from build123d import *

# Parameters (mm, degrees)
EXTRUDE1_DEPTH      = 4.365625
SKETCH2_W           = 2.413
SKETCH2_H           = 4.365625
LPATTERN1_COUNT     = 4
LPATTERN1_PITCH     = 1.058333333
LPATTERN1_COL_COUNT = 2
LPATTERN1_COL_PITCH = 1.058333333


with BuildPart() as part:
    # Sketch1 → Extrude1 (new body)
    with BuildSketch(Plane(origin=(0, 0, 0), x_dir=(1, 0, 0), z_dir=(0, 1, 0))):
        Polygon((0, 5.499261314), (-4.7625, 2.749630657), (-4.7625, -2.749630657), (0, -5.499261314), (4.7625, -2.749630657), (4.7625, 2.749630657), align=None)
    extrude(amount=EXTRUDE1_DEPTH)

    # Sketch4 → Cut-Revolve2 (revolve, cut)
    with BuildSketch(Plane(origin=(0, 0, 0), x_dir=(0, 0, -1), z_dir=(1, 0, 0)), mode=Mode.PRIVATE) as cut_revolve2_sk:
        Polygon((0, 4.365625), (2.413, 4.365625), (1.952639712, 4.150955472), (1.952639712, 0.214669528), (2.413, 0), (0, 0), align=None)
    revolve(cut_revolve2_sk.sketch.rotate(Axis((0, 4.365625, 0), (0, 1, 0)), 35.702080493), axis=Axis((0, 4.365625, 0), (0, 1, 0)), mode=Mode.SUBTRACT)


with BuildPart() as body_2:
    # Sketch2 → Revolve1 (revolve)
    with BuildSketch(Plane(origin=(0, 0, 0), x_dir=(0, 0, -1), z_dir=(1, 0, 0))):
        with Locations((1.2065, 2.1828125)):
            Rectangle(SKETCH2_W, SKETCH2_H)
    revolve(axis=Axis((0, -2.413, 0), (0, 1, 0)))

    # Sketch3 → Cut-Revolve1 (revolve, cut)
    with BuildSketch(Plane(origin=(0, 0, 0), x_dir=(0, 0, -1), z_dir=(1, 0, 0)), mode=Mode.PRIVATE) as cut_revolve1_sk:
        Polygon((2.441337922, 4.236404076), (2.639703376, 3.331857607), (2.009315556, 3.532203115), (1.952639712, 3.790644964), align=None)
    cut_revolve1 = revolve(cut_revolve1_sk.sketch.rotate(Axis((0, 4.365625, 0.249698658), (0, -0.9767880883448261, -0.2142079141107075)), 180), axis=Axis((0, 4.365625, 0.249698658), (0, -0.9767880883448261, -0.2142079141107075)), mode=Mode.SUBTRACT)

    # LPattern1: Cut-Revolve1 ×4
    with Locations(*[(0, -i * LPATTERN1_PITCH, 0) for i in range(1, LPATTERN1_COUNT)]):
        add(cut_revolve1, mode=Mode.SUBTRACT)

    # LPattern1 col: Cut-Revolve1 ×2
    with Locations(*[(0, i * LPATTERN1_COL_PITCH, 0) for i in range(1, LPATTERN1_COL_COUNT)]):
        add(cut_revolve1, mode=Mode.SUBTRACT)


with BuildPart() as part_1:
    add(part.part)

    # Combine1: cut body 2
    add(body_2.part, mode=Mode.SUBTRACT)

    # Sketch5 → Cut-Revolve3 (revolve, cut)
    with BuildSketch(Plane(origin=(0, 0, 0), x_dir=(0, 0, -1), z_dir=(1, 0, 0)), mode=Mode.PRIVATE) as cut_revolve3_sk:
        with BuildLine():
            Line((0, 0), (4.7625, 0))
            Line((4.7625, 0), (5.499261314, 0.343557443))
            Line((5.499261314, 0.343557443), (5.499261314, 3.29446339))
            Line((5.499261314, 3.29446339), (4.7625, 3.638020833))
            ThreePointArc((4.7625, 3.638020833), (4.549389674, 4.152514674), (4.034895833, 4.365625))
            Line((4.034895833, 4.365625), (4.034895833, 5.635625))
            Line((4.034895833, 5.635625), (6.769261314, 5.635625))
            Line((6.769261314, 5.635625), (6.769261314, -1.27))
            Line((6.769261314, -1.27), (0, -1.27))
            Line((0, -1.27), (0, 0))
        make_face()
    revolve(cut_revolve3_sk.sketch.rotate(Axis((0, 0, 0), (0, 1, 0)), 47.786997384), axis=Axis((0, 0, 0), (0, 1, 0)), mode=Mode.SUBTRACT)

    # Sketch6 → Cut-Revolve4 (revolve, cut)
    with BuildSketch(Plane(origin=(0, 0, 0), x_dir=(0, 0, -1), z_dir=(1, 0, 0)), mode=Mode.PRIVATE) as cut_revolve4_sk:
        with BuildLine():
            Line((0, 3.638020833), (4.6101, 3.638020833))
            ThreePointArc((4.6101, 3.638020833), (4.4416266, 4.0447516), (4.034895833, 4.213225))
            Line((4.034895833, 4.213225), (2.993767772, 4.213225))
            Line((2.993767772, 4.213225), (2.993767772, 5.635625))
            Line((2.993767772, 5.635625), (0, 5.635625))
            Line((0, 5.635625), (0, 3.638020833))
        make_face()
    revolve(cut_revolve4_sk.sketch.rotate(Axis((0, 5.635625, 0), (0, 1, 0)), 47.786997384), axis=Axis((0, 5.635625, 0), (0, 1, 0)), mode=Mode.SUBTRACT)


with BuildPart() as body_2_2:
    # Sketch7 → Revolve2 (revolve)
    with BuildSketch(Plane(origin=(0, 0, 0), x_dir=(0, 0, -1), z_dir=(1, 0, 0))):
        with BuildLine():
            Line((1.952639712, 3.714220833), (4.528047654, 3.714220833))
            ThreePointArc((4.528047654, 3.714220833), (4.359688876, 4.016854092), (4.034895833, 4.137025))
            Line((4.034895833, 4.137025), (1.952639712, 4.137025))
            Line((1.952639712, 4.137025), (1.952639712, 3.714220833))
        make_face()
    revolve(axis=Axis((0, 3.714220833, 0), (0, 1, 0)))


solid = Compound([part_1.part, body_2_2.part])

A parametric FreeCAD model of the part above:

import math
import FreeCAD as App
import Part
import Sketcher
Q = App.Units.Quantity

doc = App.newDocument("Part")
body = doc.addObject("PartDesign::Body", "Body")

sketch1 = body.newObject("Sketcher::SketchObject", "Sketch")
sketch1.AttachmentSupport = (doc.getObject("XZ_Plane"), [""])
sketch1.MapMode = "FlatFace"
sketch1.addGeometry(Part.LineSegment(App.Vector(0, -5, 0), App.Vector(-5, -3, 0)), False)
sketch1.addGeometry(Part.LineSegment(App.Vector(-5, -3, 0), App.Vector(-5, 3, 0)), False)
sketch1.addGeometry(Part.LineSegment(App.Vector(-5, 3, 0), App.Vector(0, 5, 0)), False)
sketch1.addGeometry(Part.LineSegment(App.Vector(0, 5, 0), App.Vector(5, 3, 0)), False)
sketch1.addGeometry(Part.LineSegment(App.Vector(5, 3, 0), App.Vector(5, -3, 0)), False)
sketch1.addGeometry(Part.LineSegment(App.Vector(5, -3, 0), App.Vector(0, -5, 0)), False)
sketch1.addConstraint(Sketcher.Constraint("Coincident", 0, 2, 1, 1))
sketch1.addConstraint(Sketcher.Constraint("Coincident", 1, 2, 2, 1))
sketch1.addConstraint(Sketcher.Constraint("Coincident", 2, 2, 3, 1))
sketch1.addConstraint(Sketcher.Constraint("Coincident", 3, 2, 4, 1))
sketch1.addConstraint(Sketcher.Constraint("Coincident", 4, 2, 5, 1))
sketch1.addConstraint(Sketcher.Constraint("Coincident", 5, 2, 0, 1))
sketch1.addConstraint(Sketcher.Constraint("Vertical", 1))
sketch1.addConstraint(Sketcher.Constraint("Vertical", 4))
sketch1.addConstraint(Sketcher.Constraint("Symmetric", 0, 2, 3, 2, -1, 1))
sketch1.addConstraint(Sketcher.Constraint("Symmetric", 2, 2, 5, 2, -1, 1))
sketch1.addConstraint(Sketcher.Constraint("PointOnObject", 2, 2, -2))
sketch1.addConstraint(Sketcher.Constraint("Parallel", 2, 5))
sketch1.addConstraint(Sketcher.Constraint("Horizontal", 1, 2, 3, 2))
sketch1.addConstraint(Sketcher.Constraint("Angle", 0, Q("150 deg")))
sketch1.addConstraint(Sketcher.Constraint("DistanceX", 0, 2, -1, 1, Q("0.1875 in")))
sketch1.addConstraint(Sketcher.Constraint("DistanceY", 1, 1, 1, 2, 5.499261))
pad1 = body.newObject("PartDesign::Pad", "Pad")
pad1.Profile = sketch1
pad1.Length = Q("0.171875 in")
pad1.Reversed = True

sketch2 = body.newObject("Sketcher::SketchObject", "Sketch001")
sketch2.AttachmentSupport = (doc.getObject("YZ_Plane"), [""])
sketch2.MapMode = "FlatFace"
sketch2.addGeometry(Part.LineSegment(App.Vector(4.4, -2.4, 0), App.Vector(4.4, 0, 0)), False)
sketch2.addGeometry(Part.LineSegment(App.Vector(4.4, 0, 0), App.Vector(0, 0, 0)), False)
sketch2.addGeometry(Part.LineSegment(App.Vector(0, 0, 0), App.Vector(0, -2.4, 0)), False)
sketch2.addGeometry(Part.LineSegment(App.Vector(0, -2.4, 0), App.Vector(0.2, -2, 0)), False)
sketch2.addGeometry(Part.LineSegment(App.Vector(0.2, -2, 0), App.Vector(4.2, -2, 0)), False)
sketch2.addGeometry(Part.LineSegment(App.Vector(4.2, -2, 0), App.Vector(4.4, -2.4, 0)), False)
sketch2.addConstraint(Sketcher.Constraint("Coincident", 0, 2, 1, 1))
sketch2.addConstraint(Sketcher.Constraint("Coincident", 1, 2, 2, 1))
sketch2.addConstraint(Sketcher.Constraint("Coincident", 2, 2, 3, 1))
sketch2.addConstraint(Sketcher.Constraint("Coincident", 3, 2, 4, 1))
sketch2.addConstraint(Sketcher.Constraint("Coincident", 4, 2, 5, 1))
sketch2.addConstraint(Sketcher.Constraint("Coincident", 5, 2, 0, 1))
sketch2.addConstraint(Sketcher.Constraint("Vertical", 0))
sketch2.addConstraint(Sketcher.Constraint("Horizontal", 1))
sketch2.addConstraint(Sketcher.Constraint("Vertical", 2))
sketch2.addConstraint(Sketcher.Constraint("Horizontal", 4))
sketch2.addConstraint(Sketcher.Constraint("Coincident", 1, 2, -1, 1))
sketch2.addConstraint(Sketcher.Constraint("Horizontal", 2, 2, 5, 2))
sketch2.addConstraint(Sketcher.Constraint("Equal", 3, 5))
sketch2.addConstraint(Sketcher.Constraint("Angle", 3, Q("65 deg")))
sketch2.addConstraint(Sketcher.Constraint("DistanceX", 1, 2, 1, 1, Q("0.171875 in")))
sketch2.addConstraint(Sketcher.Constraint("DistanceY", 0, 1, 0, 2, Q("0.095 in")))
sketch2.addConstraint(Sketcher.Constraint("Distance", 3, 0.507951))
groove = body.newObject("PartDesign::Groove", "Groove")
groove.Profile = sketch2
groove.ReferenceAxis = (sketch2, ["H_Axis"])
groove.Angle = 360
body2 = doc.addObject("PartDesign::Body", "Body001")

sketch3 = body2.newObject("Sketcher::SketchObject", "Sketch002")
sketch3.AttachmentSupport = (doc.getObject("YZ_Plane001"), [""])
sketch3.MapMode = "FlatFace"
sketch3.addGeometry(Part.LineSegment(App.Vector(4.4, 0, 0), App.Vector(0, 0, 0)), False)
sketch3.addGeometry(Part.LineSegment(App.Vector(0, 0, 0), App.Vector(0, -2.4, 0)), False)
sketch3.addGeometry(Part.LineSegment(App.Vector(0, -2.4, 0), App.Vector(4.4, -2.4, 0)), False)
sketch3.addGeometry(Part.LineSegment(App.Vector(4.4, -2.4, 0), App.Vector(4.4, 0, 0)), False)
sketch3.addConstraint(Sketcher.Constraint("Coincident", 0, 2, 1, 1))
sketch3.addConstraint(Sketcher.Constraint("Coincident", 1, 2, 2, 1))
sketch3.addConstraint(Sketcher.Constraint("Coincident", 2, 2, 3, 1))
sketch3.addConstraint(Sketcher.Constraint("Coincident", 3, 2, 0, 1))
sketch3.addConstraint(Sketcher.Constraint("Horizontal", 0))
sketch3.addConstraint(Sketcher.Constraint("Vertical", 1))
sketch3.addConstraint(Sketcher.Constraint("Horizontal", 2))
sketch3.addConstraint(Sketcher.Constraint("Vertical", 3))
sketch3.addConstraint(Sketcher.Constraint("Coincident", 0, 2, -1, 1))
sketch3.addConstraint(Sketcher.Constraint("DistanceX", 0, 2, 0, 1, Q("0.171875 in")))
sketch3.addConstraint(Sketcher.Constraint("DistanceY", 1, 2, 1, 1, Q("0.095 in")))
revolution = body2.newObject("PartDesign::Revolution", "Revolution")
revolution.Profile = sketch3
revolution.ReferenceAxis = (sketch3, ["H_Axis"])
revolution.Angle = 360

sketch4 = body2.newObject("Sketcher::SketchObject", "Sketch003")
sketch4.AttachmentSupport = (doc.getObject("YZ_Plane001"), [""])
sketch4.MapMode = "FlatFace"
sketch4.addGeometry(Part.LineSegment(App.Vector(3.33, -2.64, 0), App.Vector(4.24, -2.44, 0)), False)
sketch4.addGeometry(Part.LineSegment(App.Vector(4.24, -2.44, 0), App.Vector(3.79, -1.95, 0)), False)
sketch4.addGeometry(Part.LineSegment(App.Vector(3.79, -1.95, 0), App.Vector(3.53, -2.01, 0)), False)
sketch4.addGeometry(Part.LineSegment(App.Vector(3.53, -2.01, 0), App.Vector(3.33, -2.64, 0)), False)
sketch4.addGeometry(Part.LineSegment(App.Vector(3.68, 0.1, 0), App.Vector(2.77, -0.1, 0)), True)
sketch4.addConstraint(Sketcher.Constraint("Coincident", 0, 2, 1, 1))
sketch4.addConstraint(Sketcher.Constraint("Coincident", 1, 2, 2, 1))
sketch4.addConstraint(Sketcher.Constraint("Coincident", 2, 2, 3, 1))
sketch4.addConstraint(Sketcher.Constraint("Coincident", 3, 2, 0, 1))
sketch4.addConstraint(Sketcher.Constraint("Parallel", 0, 2))
sketch4.addConstraint(Sketcher.Constraint("Parallel", 2, 4))
sketch4.addConstraint(Sketcher.Constraint("Equal", 1, 3))
sketch4.addConstraint(Sketcher.Constraint("Equal", 0, 4))
sketch4.addConstraint(Sketcher.Constraint("DistanceY", 0, 2, 1, 2, 0.488698))
sketch4.addConstraint(Sketcher.Constraint("DistanceX", 2, 2, 0, 2, 0.704201))
sketch4.addConstraint(Sketcher.Constraint("DistanceY", 2, 2, 4, 1, 2.108498))
sketch4.addConstraint(Sketcher.Constraint("Distance", 0, 0.926042))
sketch4.addConstraint(Sketcher.Constraint("Distance", 1, 0.661458))
sketch4.addConstraint(Sketcher.Constraint("DistanceY", 1, 2, -1, 1, 1.95264))
sketch4.addConstraint(Sketcher.Constraint("DistanceX", 2, 2, 4, 1, 0.147069))
sketch4.addConstraint(Sketcher.Constraint("DistanceX", -1, 1, 0, 2, 4.236404))
groove2 = body2.newObject("PartDesign::Groove", "Groove001")
groove2.Profile = sketch4
groove2.ReferenceAxis = (sketch4, ["Axis0"])
groove2.Angle = 360
doc.recompute()

linearpattern = body2.newObject("PartDesign::LinearPattern", "LinearPattern")
linearpattern.Originals = [groove2]
linearpattern.Direction = (doc.getObject("Y_Axis001"), [""])
linearpattern.Mode = "offset"
linearpattern.Offset = 1.058333
linearpattern.Occurrences = 4
linearpattern.Reversed = True
body2.Tip = linearpattern
doc.recompute()

linearpattern2 = body2.newObject("PartDesign::LinearPattern", "LinearPattern001")
linearpattern2.Originals = [groove2]
linearpattern2.Direction = (doc.getObject("Y_Axis001"), [""])
linearpattern2.Mode = "offset"
linearpattern2.Offset = 1.058333
linearpattern2.Occurrences = 2
body2.Tip = linearpattern2
doc.recompute()

boolean = body.newObject("PartDesign::Boolean", "Boolean")
boolean.Type = "Cut"
boolean.addObjects([body2])

sketch5 = body.newObject("Sketcher::SketchObject", "Sketch004")
sketch5.AttachmentSupport = (doc.getObject("YZ_Plane"), [""])
sketch5.MapMode = "FlatFace"
sketch5.addGeometry(Part.LineSegment(App.Vector(0, -4.8, 0), App.Vector(0, 0, 0)), False)
sketch5.addGeometry(Part.LineSegment(App.Vector(0, 0, 0), App.Vector(-1.3, 0, 0)), False)
sketch5.addGeometry(Part.LineSegment(App.Vector(-1.3, 0, 0), App.Vector(-1.3, -6.8, 0)), False)
sketch5.addGeometry(Part.LineSegment(App.Vector(-1.3, -6.8, 0), App.Vector(5.6, -6.8, 0)), False)
sketch5.addGeometry(Part.LineSegment(App.Vector(5.6, -6.8, 0), App.Vector(5.6, -4, 0)), False)
sketch5.addGeometry(Part.LineSegment(App.Vector(5.6, -4, 0), App.Vector(4.4, -4, 0)), False)
sketch5.addGeometry(Part.ArcOfCircle(Part.Circle(App.Vector(3.6, -4, 0), App.Vector(0, 0, 1), 0.7), math.radians(-90), math.radians(0)), False)
sketch5.addGeometry(Part.LineSegment(App.Vector(3.6, -4.8, 0), App.Vector(3.3, -5.5, 0)), False)
sketch5.addGeometry(Part.LineSegment(App.Vector(3.3, -5.5, 0), App.Vector(0.3, -5.5, 0)), False)
sketch5.addGeometry(Part.LineSegment(App.Vector(0.3, -5.5, 0), App.Vector(0, -4.8, 0)), False)
sketch5.addConstraint(Sketcher.Constraint("Coincident", 0, 2, 1, 1))
sketch5.addConstraint(Sketcher.Constraint("Coincident", 1, 2, 2, 1))
sketch5.addConstraint(Sketcher.Constraint("Coincident", 2, 2, 3, 1))
sketch5.addConstraint(Sketcher.Constraint("Coincident", 3, 2, 4, 1))
sketch5.addConstraint(Sketcher.Constraint("Coincident", 4, 2, 5, 1))
sketch5.addConstraint(Sketcher.Constraint("Coincident", 5, 2, 6, 2))
sketch5.addConstraint(Sketcher.Constraint("Coincident", 6, 1, 7, 1))
sketch5.addConstraint(Sketcher.Constraint("Coincident", 7, 2, 8, 1))
sketch5.addConstraint(Sketcher.Constraint("Coincident", 8, 2, 9, 1))
sketch5.addConstraint(Sketcher.Constraint("Coincident", 9, 2, 0, 1))
sketch5.addConstraint(Sketcher.Constraint("Vertical", 0))
sketch5.addConstraint(Sketcher.Constraint("Horizontal", 1))
sketch5.addConstraint(Sketcher.Constraint("Vertical", 2))
sketch5.addConstraint(Sketcher.Constraint("Horizontal", 3))
sketch5.addConstraint(Sketcher.Constraint("Vertical", 4))
sketch5.addConstraint(Sketcher.Constraint("Horizontal", 5))
sketch5.addConstraint(Sketcher.Constraint("Horizontal", 8))
sketch5.addConstraint(Sketcher.Constraint("Coincident", 0, 2, -1, 1))
sketch5.addConstraint(Sketcher.Constraint("Horizontal", 6, 3, 4, 2))
sketch5.addConstraint(Sketcher.Constraint("Horizontal", 6, 1, 9, 2))
sketch5.addConstraint(Sketcher.Constraint("Equal", 1, 5))
sketch5.addConstraint(Sketcher.Constraint("Equal", 7, 9))
sketch5.addConstraint(Sketcher.Constraint("Angle", 7, Q("-115 deg")))
sketch5.addConstraint(Sketcher.Constraint("DistanceX", 1, 2, 1, 1, Q("0.05 in")))
sketch5.addConstraint(Sketcher.Constraint("DistanceY", 0, 1, 0, 2, Q("0.1875 in")))
sketch5.addConstraint(Sketcher.Constraint("DistanceY", 3, 2, 7, 2, Q("0.05 in")))
sketch5.addConstraint(Sketcher.Constraint("DistanceX", -1, 1, 5, 2, Q("0.171875 in")))
sketch5.addConstraint(Sketcher.Constraint("Radius", 6, 0.727604))
sketch5.addConstraint(Sketcher.Constraint("DistanceY", 2, 2, 2, 1, 6.769261))
sketch5.addConstraint(Sketcher.Constraint("DistanceX", 8, 2, 8, 1, 2.950906))
groove3 = body.newObject("PartDesign::Groove", "Groove002")
groove3.Profile = sketch5
groove3.ReferenceAxis = (sketch5, ["H_Axis"])
groove3.Angle = 360

sketch6 = body.newObject("Sketcher::SketchObject", "Sketch005")
sketch6.AttachmentSupport = (doc.getObject("YZ_Plane"), [""])
sketch6.MapMode = "FlatFace"
sketch6.addGeometry(Part.LineSegment(App.Vector(3.6, 0, 0), App.Vector(3.6, -4.6, 0)), False)
sketch6.addGeometry(Part.ArcOfCircle(Part.Circle(App.Vector(3.6, -4, 0), App.Vector(0, 0, 1), 0.6), math.radians(-90), math.radians(0)), False)
sketch6.addGeometry(Part.LineSegment(App.Vector(4.2, -4, 0), App.Vector(4.2, -3, 0)), False)
sketch6.addGeometry(Part.LineSegment(App.Vector(4.2, -3, 0), App.Vector(5.6, -3, 0)), False)
sketch6.addGeometry(Part.LineSegment(App.Vector(5.6, -3, 0), App.Vector(5.6, 0, 0)), False)
sketch6.addGeometry(Part.LineSegment(App.Vector(5.6, 0, 0), App.Vector(3.6, 0, 0)), False)
sketch6.addConstraint(Sketcher.Constraint("Coincident", 0, 2, 1, 1))
sketch6.addConstraint(Sketcher.Constraint("Tangent", 1, 2, 2, 1))
sketch6.addConstraint(Sketcher.Constraint("Coincident", 2, 2, 3, 1))
sketch6.addConstraint(Sketcher.Constraint("Coincident", 3, 2, 4, 1))
sketch6.addConstraint(Sketcher.Constraint("Coincident", 4, 2, 5, 1))
sketch6.addConstraint(Sketcher.Constraint("Coincident", 5, 2, 0, 1))
sketch6.addConstraint(Sketcher.Constraint("Vertical", 0))
sketch6.addConstraint(Sketcher.Constraint("Vertical", 2))
sketch6.addConstraint(Sketcher.Constraint("Horizontal", 3))
sketch6.addConstraint(Sketcher.Constraint("Vertical", 4))
sketch6.addConstraint(Sketcher.Constraint("Horizontal", 5))
sketch6.addConstraint(Sketcher.Constraint("PointOnObject", 4, 2, -1))
sketch6.addConstraint(Sketcher.Constraint("Vertical", 1, 3, 0, 2))
sketch6.addConstraint(Sketcher.Constraint("DistanceX", 3, 1, 3, 2, Q("0.056 in")))
sketch6.addConstraint(Sketcher.Constraint("DistanceY", 0, 2, 0, 1, Q("0.1815 in")))
sketch6.addConstraint(Sketcher.Constraint("Radius", 1, 0.575204))
sketch6.addConstraint(Sketcher.Constraint("DistanceY", 2, 1, 2, 2, 1.041128))
sketch6.addConstraint(Sketcher.Constraint("DistanceX", -1, 1, 1, 3, 3.638021))
groove4 = body.newObject("PartDesign::Groove", "Groove003")
groove4.Profile = sketch6
groove4.ReferenceAxis = (sketch6, ["H_Axis"])
groove4.Angle = 360
body3 = doc.addObject("PartDesign::Body", "Body002")

sketch7 = body3.newObject("Sketcher::SketchObject", "Sketch006")
sketch7.AttachmentSupport = (doc.getObject("YZ_Plane002"), [""])
sketch7.MapMode = "FlatFace"
sketch7.addGeometry(Part.LineSegment(App.Vector(3.71, -1.95, 0), App.Vector(3.71, -4.53, 0)), False)
sketch7.addGeometry(Part.ArcOfCircle(Part.Circle(App.Vector(3.64, -4.03, 0), App.Vector(0, 0, 1), 0.5), math.radians(-81), math.radians(0)), False)
sketch7.addGeometry(Part.LineSegment(App.Vector(4.14, -4.03, 0), App.Vector(4.14, -1.95, 0)), False)
sketch7.addGeometry(Part.LineSegment(App.Vector(4.14, -1.95, 0), App.Vector(3.71, -1.95, 0)), False)
sketch7.addConstraint(Sketcher.Constraint("Coincident", 0, 2, 1, 1))
sketch7.addConstraint(Sketcher.Constraint("Tangent", 1, 2, 2, 1))
sketch7.addConstraint(Sketcher.Constraint("Coincident", 2, 2, 3, 1))
sketch7.addConstraint(Sketcher.Constraint("Coincident", 3, 2, 0, 1))
sketch7.addConstraint(Sketcher.Constraint("Vertical", 0))
sketch7.addConstraint(Sketcher.Constraint("Vertical", 2))
sketch7.addConstraint(Sketcher.Constraint("Horizontal", 3))
sketch7.addConstraint(Sketcher.Constraint("DistanceX", 1, 3, 0, 2, Q("0.003 in")))
sketch7.addConstraint(Sketcher.Constraint("Radius", 1, 0.499004))
sketch7.addConstraint(Sketcher.Constraint("DistanceY", 0, 2, 0, 1, 2.575408))
sketch7.addConstraint(Sketcher.Constraint("DistanceX", -1, 1, 1, 3, 3.638021))
sketch7.addConstraint(Sketcher.Constraint("DistanceY", 2, 2, -1, 1, 1.95264))
revolution2 = body3.newObject("PartDesign::Revolution", "Revolution001")
revolution2.Profile = sketch7
revolution2.ReferenceAxis = (sketch7, ["H_Axis"])
revolution2.Angle = 360

doc.recompute()
